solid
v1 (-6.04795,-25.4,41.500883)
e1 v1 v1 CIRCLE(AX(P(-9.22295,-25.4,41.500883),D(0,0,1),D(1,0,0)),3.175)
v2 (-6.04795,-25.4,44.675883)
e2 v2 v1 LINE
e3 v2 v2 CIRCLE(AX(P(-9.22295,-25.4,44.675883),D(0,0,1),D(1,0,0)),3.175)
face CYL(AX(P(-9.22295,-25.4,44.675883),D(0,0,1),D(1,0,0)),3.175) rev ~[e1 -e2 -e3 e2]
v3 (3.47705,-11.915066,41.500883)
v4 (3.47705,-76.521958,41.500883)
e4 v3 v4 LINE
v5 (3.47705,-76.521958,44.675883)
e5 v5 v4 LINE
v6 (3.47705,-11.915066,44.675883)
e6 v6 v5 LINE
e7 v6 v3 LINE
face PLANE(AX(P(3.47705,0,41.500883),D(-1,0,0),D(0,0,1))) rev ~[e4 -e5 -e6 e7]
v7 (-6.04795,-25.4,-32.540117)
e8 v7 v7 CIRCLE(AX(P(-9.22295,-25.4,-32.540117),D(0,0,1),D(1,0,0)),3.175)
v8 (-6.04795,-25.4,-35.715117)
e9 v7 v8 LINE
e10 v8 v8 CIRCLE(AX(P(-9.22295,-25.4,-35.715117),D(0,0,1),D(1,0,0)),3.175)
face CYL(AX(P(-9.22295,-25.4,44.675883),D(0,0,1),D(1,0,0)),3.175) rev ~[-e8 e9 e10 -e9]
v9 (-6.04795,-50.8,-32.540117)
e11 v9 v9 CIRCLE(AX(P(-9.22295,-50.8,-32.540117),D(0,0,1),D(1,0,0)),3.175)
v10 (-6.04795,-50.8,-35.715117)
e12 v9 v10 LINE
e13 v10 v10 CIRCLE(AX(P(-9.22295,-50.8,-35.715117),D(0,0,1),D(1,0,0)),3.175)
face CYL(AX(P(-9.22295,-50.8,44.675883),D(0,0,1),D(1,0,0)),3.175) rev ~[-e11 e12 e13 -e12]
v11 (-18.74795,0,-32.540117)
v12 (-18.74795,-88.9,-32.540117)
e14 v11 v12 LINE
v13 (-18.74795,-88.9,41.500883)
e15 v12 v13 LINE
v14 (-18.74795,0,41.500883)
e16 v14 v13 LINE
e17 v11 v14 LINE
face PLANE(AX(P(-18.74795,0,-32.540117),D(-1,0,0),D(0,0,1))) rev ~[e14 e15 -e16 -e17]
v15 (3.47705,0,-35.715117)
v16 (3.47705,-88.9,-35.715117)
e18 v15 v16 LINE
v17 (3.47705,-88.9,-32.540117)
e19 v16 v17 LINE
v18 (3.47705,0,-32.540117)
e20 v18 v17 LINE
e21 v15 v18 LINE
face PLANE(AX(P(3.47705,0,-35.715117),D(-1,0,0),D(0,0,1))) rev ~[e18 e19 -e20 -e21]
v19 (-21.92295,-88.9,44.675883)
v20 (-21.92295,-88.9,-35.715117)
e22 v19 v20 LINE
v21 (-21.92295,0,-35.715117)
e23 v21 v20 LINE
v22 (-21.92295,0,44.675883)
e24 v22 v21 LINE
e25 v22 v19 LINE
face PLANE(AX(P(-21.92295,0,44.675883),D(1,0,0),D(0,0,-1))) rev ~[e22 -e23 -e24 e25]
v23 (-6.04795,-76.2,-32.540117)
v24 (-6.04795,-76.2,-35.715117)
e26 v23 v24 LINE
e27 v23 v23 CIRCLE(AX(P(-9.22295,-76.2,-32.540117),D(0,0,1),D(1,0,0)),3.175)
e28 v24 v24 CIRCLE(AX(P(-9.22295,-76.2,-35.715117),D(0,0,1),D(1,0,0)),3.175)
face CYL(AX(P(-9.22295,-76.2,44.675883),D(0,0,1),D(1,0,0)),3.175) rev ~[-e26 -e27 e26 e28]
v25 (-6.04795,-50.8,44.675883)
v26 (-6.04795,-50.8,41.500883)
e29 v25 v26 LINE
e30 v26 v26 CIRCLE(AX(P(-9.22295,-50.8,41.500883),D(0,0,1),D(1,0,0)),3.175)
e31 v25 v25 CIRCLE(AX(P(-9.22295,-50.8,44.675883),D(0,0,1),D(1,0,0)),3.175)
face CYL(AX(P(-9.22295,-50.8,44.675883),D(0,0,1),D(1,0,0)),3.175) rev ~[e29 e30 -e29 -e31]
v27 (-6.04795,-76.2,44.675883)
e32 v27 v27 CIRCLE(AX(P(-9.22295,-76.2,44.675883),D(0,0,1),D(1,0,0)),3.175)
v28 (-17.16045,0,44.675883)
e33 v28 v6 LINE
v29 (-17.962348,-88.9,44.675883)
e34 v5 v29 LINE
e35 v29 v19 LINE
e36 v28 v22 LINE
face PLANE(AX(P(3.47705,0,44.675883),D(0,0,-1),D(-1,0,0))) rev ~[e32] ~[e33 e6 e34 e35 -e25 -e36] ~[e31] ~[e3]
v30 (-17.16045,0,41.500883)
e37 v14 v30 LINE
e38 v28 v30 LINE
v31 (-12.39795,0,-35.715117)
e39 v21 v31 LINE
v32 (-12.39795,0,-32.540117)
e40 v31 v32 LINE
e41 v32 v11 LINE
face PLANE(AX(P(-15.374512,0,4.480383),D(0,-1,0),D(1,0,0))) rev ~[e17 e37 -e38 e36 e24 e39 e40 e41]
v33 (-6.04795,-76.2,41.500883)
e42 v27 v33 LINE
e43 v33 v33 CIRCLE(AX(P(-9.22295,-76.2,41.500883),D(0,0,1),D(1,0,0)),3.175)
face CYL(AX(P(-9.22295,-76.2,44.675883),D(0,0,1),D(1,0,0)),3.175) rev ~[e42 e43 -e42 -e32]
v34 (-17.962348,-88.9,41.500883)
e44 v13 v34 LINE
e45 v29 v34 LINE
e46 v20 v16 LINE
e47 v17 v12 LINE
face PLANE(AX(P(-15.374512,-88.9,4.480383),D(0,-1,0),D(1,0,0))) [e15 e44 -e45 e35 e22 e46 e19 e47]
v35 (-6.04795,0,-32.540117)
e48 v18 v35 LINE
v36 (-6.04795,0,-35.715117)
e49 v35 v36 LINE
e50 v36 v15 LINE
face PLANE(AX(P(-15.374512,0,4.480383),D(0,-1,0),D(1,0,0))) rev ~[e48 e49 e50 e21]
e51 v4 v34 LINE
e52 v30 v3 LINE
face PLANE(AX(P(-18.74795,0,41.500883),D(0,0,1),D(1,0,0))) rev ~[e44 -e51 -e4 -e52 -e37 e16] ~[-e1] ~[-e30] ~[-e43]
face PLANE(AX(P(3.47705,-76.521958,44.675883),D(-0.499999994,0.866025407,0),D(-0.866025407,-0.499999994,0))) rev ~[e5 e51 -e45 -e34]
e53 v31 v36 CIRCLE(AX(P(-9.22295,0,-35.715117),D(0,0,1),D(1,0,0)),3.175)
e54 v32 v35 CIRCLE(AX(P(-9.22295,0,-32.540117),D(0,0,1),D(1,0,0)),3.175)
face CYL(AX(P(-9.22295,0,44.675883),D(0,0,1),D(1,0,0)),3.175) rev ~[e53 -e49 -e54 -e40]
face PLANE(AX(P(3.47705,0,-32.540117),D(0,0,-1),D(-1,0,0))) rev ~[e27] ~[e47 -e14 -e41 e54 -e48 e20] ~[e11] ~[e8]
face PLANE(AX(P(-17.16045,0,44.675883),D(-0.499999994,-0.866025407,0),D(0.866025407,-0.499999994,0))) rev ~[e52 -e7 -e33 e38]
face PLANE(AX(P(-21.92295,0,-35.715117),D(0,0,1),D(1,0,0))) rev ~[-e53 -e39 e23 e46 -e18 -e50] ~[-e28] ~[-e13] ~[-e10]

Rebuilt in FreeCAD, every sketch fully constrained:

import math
import FreeCAD as App
import Part
import Sketcher

V = App.Vector
Q = App.Units.Quantity

doc = App.newDocument("Part")
body = doc.addObject("PartDesign::Body", "Body")

# Sketch on XZ plane
sketch1 = doc.addObject("Sketcher::SketchObject", "Sketch")
body.addObject(sketch1)
sketch1.AttachmentSupport = (doc.XZ_Plane, [""])
sketch1.MapMode = "FlatFace"
sketch1.addGeometry([
    Part.LineSegment(V(3.5, 44.7, 0), V(-21.9, 44.7, 0)),  # 0
    Part.LineSegment(V(-21.9, 44.7, 0), V(-21.9, -35.7, 0)),  # 1
    Part.LineSegment(V(-21.9, -35.7, 0), V(3.5, -35.7, 0)),  # 2
    Part.LineSegment(V(3.5, -35.7, 0), V(3.5, -32.5, 0)),  # 3
    Part.LineSegment(V(3.5, -32.5, 0), V(-18.7, -32.5, 0)),  # 4
    Part.LineSegment(V(-18.7, -32.5, 0), V(-18.7, 41.5, 0)),  # 5
    Part.LineSegment(V(-18.7, 41.5, 0), V(3.5, 41.5, 0)),  # 6
    Part.LineSegment(V(3.5, 41.5, 0), V(3.5, 44.7, 0)),  # 7
], False)
sketch1.addConstraint([
    Sketcher.Constraint("Coincident", 0, 2, 1, 1),
    Sketcher.Constraint("Coincident", 1, 2, 2, 1),
    Sketcher.Constraint("Coincident", 2, 2, 3, 1),
    Sketcher.Constraint("Coincident", 3, 2, 4, 1),
    Sketcher.Constraint("Coincident", 4, 2, 5, 1),
    Sketcher.Constraint("Coincident", 5, 2, 6, 1),
    Sketcher.Constraint("Coincident", 6, 2, 7, 1),
    Sketcher.Constraint("Coincident", 7, 2, 0, 1),
    Sketcher.Constraint("Horizontal", 0),
    Sketcher.Constraint("Vertical", 1),
    Sketcher.Constraint("Horizontal", 2),
    Sketcher.Constraint("Vertical", 3),
    Sketcher.Constraint("Horizontal", 4),
    Sketcher.Constraint("Vertical", 5),
    Sketcher.Constraint("Horizontal", 6),
    Sketcher.Constraint("Vertical", 7),
    Sketcher.Constraint("Vertical", 3, 2, 6, 2),
    Sketcher.Constraint("Equal", 3, 7),
    Sketcher.Constraint("DistanceX", 0, 2, 0, 1, Q("1 in")),
    Sketcher.Constraint("DistanceX", 4, 2, 4, 1, Q("0.875 in")),
    Sketcher.Constraint("DistanceY", 1, 2, 1, 1, Q("3.165 in")),
    Sketcher.Constraint("DistanceY", 3, 1, 3, 2, Q("0.125 in")),
    Sketcher.Constraint("DistanceX", 0, 2, -1, 1, Q("21.92295 mm")),
    Sketcher.Constraint("DistanceY", -1, 1, 0, 2, Q("44.675883 mm")),
])
pad1 = doc.addObject("PartDesign::Pad", "Pad")
body.addObject(pad1)
pad1.Profile = sketch1
pad1.Length = Q("3.5 in")

# Sketch on XY plane
sketch2 = doc.addObject("Sketcher::SketchObject", "Sketch001")
body.addObject(sketch2)
sketch2.AttachmentSupport = (doc.XY_Plane, [""])
sketch2.MapMode = "FlatFace"
sketch2.AttachmentOffset = App.Placement(V(0, 0, 44.675883), App.Rotation())
sketch2.addGeometry([
    Part.Circle(V(-9.2, -76.2, 0), V(0, 0, 1), 3.2),  # 0
    Part.Circle(V(-9.2, -50.8, 0), V(0, 0, 1), 3.2),  # 1
    Part.Circle(V(-9.2, -25.4, 0), V(0, 0, 1), 3.2),  # 2
    Part.Circle(V(-9.2, 0, 0), V(0, 0, 1), 3.2),  # 3
    Part.Circle(V(-34.6, -76.2, 0), V(0, 0, 1), 3.2),  # 4
    Part.Circle(V(-34.6, -50.8, 0), V(0, 0, 1), 3.2),  # 5
    Part.Circle(V(-34.6, -25.4, 0), V(0, 0, 1), 3.2),  # 6
    Part.Circle(V(-34.6, 0, 0), V(0, 0, 1), 3.2),  # 7
], False)
sketch2.addConstraint([
    Sketcher.Constraint("Equal", 0, 1),
    Sketcher.Constraint("Equal", 1, 2),
    Sketcher.Constraint("Equal", 2, 3),
    Sketcher.Constraint("Equal", 3, 4),
    Sketcher.Constraint("Equal", 4, 5),
    Sketcher.Constraint("Equal", 5, 6),
    Sketcher.Constraint("Equal", 6, 7),
    Sketcher.Constraint("PointOnObject", 3, 3, -1),
    Sketcher.Constraint("PointOnObject", 7, 3, -1),
    Sketcher.Constraint("Horizontal", 0, 3, 4, 3),
    Sketcher.Constraint("Horizontal", 1, 3, 5, 3),
    Sketcher.Constraint("Horizontal", 2, 3, 6, 3),
    Sketcher.Constraint("Vertical", 0, 3, 1, 3),
    Sketcher.Constraint("Vertical", 1, 3, 2, 3),
    Sketcher.Constraint("Vertical", 2, 3, 3, 3),
    Sketcher.Constraint("Vertical", 4, 3, 5, 3),
    Sketcher.Constraint("Vertical", 5, 3, 6, 3),
    Sketcher.Constraint("Vertical", 6, 3, 7, 3),
    Sketcher.Constraint("Diameter", 0, Q("0.25 in")),
    Sketcher.Constraint("DistanceY", 0, 3, -1, 1, Q("3 in")),
    Sketcher.Constraint("DistanceY", 1, 3, -1, 1, Q("2 in")),
    Sketcher.Constraint("DistanceY", 2, 3, -1, 1, Q("1 in")),
    Sketcher.Constraint("DistanceX", 4, 3, 0, 3, Q("1 in")),
    Sketcher.Constraint("DistanceX", 0, 3, -1, 1, Q("9.22295 mm")),
])
pocket1 = doc.addObject("PartDesign::Pocket", "Pocket")
body.addObject(pocket1)
pocket1.Profile = sketch2
pocket1.Length = Q("4 in")

# Sketch on XY plane
sketch3 = doc.addObject("Sketcher::SketchObject", "Sketch002")
body.addObject(sketch3)
sketch3.AttachmentSupport = (doc.XY_Plane, [""])
sketch3.MapMode = "FlatFace"
sketch3.AttachmentOffset = App.Placement(V(0, 0, 44.675883), App.Rotation())
sketch3.addGeometry([
    Part.LineSegment(V(-17.2, 0, 0), V(3.5, -11.9, 0)),  # 0
    Part.LineSegment(V(3.5, -11.9, 0), V(3.5, 0, 0)),  # 1
    Part.LineSegment(V(3.5, 0, 0), V(-6, 0, 0)),  # 2
    Part.ArcOfCircle(Part.Circle(V(-9.2, 0, 0), V(0, 0, 1), 3.2), math.radians(180), math.radians(360)),  # 3
    Part.LineSegment(V(-12.4, 0, 0), V(-17.2, 0, 0)),  # 4
    Part.LineSegment(V(3.5, -76.5, 0), V(-18, -88.9, 0)),  # 5
    Part.LineSegment(V(-18, -88.9, 0), V(3.5, -88.9, 0)),  # 6
    Part.LineSegment(V(3.5, -88.9, 0), V(3.5, -76.5, 0)),  # 7
], False)
sketch3.addConstraint([
    Sketcher.Constraint("Coincident", 0, 2, 1, 1),
    Sketcher.Constraint("Coincident", 1, 2, 2, 1),
    Sketcher.Constraint("Coincident", 2, 2, 3, 2),
    Sketcher.Constraint("Coincident", 3, 1, 4, 1),
    Sketcher.Constraint("Coincident", 4, 2, 0, 1),
    Sketcher.Constraint("Coincident", 5, 2, 6, 1),
    Sketcher.Constraint("Coincident", 6, 2, 7, 1),
    Sketcher.Constraint("Coincident", 7, 2, 5, 1),
    Sketcher.Constraint("Vertical", 1),
    Sketcher.Constraint("Horizontal", 2),
    Sketcher.Constraint("Horizontal", 4),
    Sketcher.Constraint("Horizontal", 6),
    Sketcher.Constraint("Vertical", 7),
    Sketcher.Constraint("PointOnObject", 3, 3, -1),
    Sketcher.Constraint("PointOnObject", 1, 2, -1),
    Sketcher.Constraint("PointOnObject", 3, 1, -1),
    Sketcher.Constraint("Vertical", 1, 2, 6, 2),
    Sketcher.Constraint("Angle", 0, Q("-30 deg")),
    Sketcher.Constraint("Angle", 5, Q("-150 deg")),
    Sketcher.Constraint("Radius", 3, Q("0.125 in")),
    Sketcher.Constraint("DistanceY", 5, 2, -1, 1, Q("3.5 in")),
    Sketcher.Constraint("DistanceX", 3, 3, 0, 2, Q("0.5 in")),
    Sketcher.Constraint("DistanceX", 4, 2, 4, 1, Q("0.1875 in")),
    Sketcher.Constraint("DistanceX", 6, 1, 6, 2, Q("21.439398 mm")),
    Sketcher.Constraint("DistanceX", 3, 3, -1, 1, Q("9.22295 mm")),
])
pocket2 = doc.addObject("PartDesign::Pocket", "Pocket001")
body.addObject(pocket2)
pocket2.Profile = sketch3
pocket2.Length = Q("0.125 in")

doc.recompute()
